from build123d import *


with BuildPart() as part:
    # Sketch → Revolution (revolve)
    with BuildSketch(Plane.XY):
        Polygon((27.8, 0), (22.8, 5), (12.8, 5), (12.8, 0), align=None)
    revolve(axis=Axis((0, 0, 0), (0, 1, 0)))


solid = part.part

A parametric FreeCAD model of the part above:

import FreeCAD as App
import Part
import Sketcher

V = App.Vector
Q = App.Units.Quantity

doc = App.newDocument("Part")
body = doc.addObject("PartDesign::Body", "Body")

# Sketch on XY plane
sketch1 = body.newObject("Sketcher::SketchObject", "Sketch")
sketch1.AttachmentSupport = (doc.getObject("XY_Plane"), [""])
sketch1.MapMode = "FlatFace"
sketch1.addGeometry(Part.LineSegment(V(28, 0, 0), V(23, 5, 0)), False)
sketch1.addGeometry(Part.LineSegment(V(23, 5, 0), V(13, 5, 0)), False)
sketch1.addGeometry(Part.LineSegment(V(13, 5, 0), V(13, 0, 0)), False)
sketch1.addGeometry(Part.LineSegment(V(13, 0, 0), V(28, 0, 0)), False)
sketch1.addConstraint(Sketcher.Constraint("Coincident", 0, 2, 1, 1))
sketch1.addConstraint(Sketcher.Constraint("Coincident", 1, 2, 2, 1))
sketch1.addConstraint(Sketcher.Constraint("Coincident", 2, 2, 3, 1))
sketch1.addConstraint(Sketcher.Constraint("Coincident", 3, 2, 0, 1))
sketch1.addConstraint(Sketcher.Constraint("Horizontal", 1))
sketch1.addConstraint(Sketcher.Constraint("Vertical", 2))
sketch1.addConstraint(Sketcher.Constraint("Horizontal", 3))
sketch1.addConstraint(Sketcher.Constraint("PointOnObject", 2, 2, -1))
sketch1.addConstraint(Sketcher.Constraint("DistanceX", 1, 2, 1, 1, Q("10 mm")))
sketch1.addConstraint(Sketcher.Constraint("DistanceX", 3, 1, 3, 2, Q("15 mm")))
sketch1.addConstraint(Sketcher.Constraint("DistanceY", 2, 2, 2, 1, Q("5 mm")))
sketch1.addConstraint(Sketcher.Constraint("DistanceX", -1, 1, 0, 2, Q("22.8 mm")))
revolution = body.newObject("PartDesign::Revolution", "Revolution")
revolution.Profile = sketch1
revolution.ReferenceAxis = (sketch1, ["V_Axis"])
revolution.Angle = 360

doc.recompute()
